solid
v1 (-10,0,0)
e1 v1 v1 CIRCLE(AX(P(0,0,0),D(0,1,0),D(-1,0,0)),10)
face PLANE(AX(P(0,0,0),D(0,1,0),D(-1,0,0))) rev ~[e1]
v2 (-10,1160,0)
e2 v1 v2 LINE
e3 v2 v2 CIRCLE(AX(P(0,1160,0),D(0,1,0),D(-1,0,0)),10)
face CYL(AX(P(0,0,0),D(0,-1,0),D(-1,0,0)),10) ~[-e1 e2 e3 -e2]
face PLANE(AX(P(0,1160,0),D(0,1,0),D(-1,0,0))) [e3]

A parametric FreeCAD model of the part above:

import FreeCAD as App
import Part
import Sketcher

doc = App.newDocument("Part")
params = doc.addObject("Spreadsheet::Sheet", "Params")
for row, (alias, value) in enumerate([
    ("sketch1_diameter", "20 mm"),
    ("pad1_length", "1160 mm"),
], start=1):
    params.set(f"A{row}", alias)
    params.set(f"B{row}", "=" + value)
    params.setAlias(f"B{row}", alias)

body = doc.addObject("PartDesign::Body", "Body")

sketch1 = doc.addObject("Sketcher::SketchObject", "Sketch")
body.addObject(sketch1)
sketch1.AttachmentSupport = (doc.XZ_Plane, [""])
sketch1.MapMode = "FlatFace"
sketch1.addGeometry(Part.Circle(App.Vector(0, 0, 0), App.Vector(0, 0, 1), 10), False)
sketch1.addConstraint(Sketcher.Constraint("Coincident", 0, 3, -1, 1))
sketch1.addConstraint(Sketcher.Constraint("Diameter", 0, 20.0))
sketch1.setExpression("Constraints[1]", "Params.sketch1_diameter")
pad1 = doc.addObject("PartDesign::Pad", "Pad")
body.addObject(pad1)
pad1.Profile = sketch1
pad1.setExpression("Length", "Params.pad1_length")
pad1.Reversed = True

doc.recompute()
